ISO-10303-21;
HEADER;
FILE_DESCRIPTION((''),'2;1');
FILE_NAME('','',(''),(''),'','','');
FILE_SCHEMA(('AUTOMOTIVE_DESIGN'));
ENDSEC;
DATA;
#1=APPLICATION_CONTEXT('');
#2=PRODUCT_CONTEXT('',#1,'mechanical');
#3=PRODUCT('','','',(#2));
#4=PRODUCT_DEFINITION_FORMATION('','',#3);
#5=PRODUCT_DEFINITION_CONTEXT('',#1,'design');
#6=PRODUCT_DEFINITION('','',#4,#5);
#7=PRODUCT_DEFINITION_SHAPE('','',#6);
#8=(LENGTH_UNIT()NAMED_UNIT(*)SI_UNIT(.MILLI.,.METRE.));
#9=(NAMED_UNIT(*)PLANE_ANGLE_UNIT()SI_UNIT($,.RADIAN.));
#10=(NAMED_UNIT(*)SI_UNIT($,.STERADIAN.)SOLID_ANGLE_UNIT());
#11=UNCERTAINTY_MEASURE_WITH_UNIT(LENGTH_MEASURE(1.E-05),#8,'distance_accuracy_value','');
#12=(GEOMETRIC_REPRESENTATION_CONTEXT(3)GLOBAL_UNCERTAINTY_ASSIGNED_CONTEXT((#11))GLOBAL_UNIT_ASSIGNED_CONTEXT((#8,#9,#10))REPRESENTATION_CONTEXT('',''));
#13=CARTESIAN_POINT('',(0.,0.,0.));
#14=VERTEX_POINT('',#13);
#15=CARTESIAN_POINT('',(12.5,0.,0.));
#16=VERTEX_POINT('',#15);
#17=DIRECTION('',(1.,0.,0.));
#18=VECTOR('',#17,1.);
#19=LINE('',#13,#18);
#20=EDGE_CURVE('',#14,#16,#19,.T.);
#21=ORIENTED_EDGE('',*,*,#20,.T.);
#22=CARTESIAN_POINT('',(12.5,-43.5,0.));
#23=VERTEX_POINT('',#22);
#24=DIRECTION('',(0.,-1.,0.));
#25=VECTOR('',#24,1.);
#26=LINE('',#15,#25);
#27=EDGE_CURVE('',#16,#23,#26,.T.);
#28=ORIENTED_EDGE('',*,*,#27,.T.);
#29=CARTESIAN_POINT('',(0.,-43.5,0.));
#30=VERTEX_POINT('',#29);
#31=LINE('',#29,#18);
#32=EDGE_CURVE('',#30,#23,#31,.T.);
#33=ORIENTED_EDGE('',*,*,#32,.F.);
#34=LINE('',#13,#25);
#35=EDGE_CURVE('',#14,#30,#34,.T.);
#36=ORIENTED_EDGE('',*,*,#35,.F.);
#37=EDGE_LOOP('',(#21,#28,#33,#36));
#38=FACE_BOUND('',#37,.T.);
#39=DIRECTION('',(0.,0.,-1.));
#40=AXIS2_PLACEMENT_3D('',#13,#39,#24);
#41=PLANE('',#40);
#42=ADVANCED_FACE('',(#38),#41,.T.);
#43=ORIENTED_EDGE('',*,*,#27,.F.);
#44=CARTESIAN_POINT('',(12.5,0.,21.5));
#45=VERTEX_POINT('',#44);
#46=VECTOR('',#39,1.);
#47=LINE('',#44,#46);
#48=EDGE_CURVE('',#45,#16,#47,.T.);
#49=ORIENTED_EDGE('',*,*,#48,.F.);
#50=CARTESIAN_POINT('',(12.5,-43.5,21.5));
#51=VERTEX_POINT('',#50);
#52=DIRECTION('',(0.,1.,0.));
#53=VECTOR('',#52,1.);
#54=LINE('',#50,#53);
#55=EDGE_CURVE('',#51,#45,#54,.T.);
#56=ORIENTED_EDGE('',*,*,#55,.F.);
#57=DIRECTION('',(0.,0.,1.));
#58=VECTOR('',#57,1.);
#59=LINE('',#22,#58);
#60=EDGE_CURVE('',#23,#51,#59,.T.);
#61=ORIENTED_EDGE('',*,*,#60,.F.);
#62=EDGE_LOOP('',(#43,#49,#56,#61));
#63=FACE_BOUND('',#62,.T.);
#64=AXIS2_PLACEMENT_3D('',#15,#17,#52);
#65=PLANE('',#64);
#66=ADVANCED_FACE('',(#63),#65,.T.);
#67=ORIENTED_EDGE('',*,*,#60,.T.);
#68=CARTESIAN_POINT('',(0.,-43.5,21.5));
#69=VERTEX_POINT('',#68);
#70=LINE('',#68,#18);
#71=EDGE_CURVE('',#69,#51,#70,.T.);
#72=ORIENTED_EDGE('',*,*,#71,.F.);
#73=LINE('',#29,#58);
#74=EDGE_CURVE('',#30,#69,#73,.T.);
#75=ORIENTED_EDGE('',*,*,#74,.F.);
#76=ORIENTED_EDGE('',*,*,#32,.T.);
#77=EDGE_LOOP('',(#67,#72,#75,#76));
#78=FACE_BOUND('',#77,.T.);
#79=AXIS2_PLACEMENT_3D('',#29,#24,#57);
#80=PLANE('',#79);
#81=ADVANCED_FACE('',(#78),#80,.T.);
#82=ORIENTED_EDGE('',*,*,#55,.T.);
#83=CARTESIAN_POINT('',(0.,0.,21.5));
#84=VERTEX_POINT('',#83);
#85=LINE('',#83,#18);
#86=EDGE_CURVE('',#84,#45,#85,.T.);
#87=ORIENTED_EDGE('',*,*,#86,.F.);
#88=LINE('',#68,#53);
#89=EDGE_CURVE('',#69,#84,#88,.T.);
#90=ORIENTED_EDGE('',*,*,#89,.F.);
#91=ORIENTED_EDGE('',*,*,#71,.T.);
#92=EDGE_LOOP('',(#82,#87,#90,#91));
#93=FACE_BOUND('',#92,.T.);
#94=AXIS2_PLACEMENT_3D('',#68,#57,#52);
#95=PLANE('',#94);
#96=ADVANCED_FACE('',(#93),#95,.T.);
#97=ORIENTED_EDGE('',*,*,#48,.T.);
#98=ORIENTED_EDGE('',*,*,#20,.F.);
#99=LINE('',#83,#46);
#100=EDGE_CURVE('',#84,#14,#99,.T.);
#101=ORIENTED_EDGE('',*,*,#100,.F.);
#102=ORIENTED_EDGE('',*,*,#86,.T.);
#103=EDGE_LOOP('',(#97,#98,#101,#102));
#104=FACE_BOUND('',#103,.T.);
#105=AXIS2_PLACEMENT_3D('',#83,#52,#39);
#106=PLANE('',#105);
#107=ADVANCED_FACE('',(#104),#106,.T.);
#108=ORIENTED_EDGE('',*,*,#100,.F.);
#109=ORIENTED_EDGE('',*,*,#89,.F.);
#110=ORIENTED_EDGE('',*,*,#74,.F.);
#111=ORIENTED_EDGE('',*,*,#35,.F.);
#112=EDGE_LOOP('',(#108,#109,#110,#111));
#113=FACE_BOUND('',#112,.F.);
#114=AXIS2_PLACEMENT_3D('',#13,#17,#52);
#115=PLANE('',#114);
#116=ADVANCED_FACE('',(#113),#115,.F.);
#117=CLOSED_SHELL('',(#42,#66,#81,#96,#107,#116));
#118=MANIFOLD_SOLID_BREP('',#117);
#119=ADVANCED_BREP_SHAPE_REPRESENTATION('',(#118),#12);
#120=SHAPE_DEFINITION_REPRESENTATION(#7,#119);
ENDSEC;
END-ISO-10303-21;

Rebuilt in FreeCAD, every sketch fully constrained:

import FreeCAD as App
import Part
import Sketcher
Q = App.Units.Quantity


def add_polygon(sketch, points):
    """Adds a closed chain of lines whose ends are joined by coincident constraints."""
    first, n = sketch.GeometryCount, len(points)
    for a, b in zip(points, points[1:] + points[:1]):
        sketch.addGeometry(Part.LineSegment(App.Vector(*a, 0), App.Vector(*b, 0)), False)
    for i in range(n):
        sketch.addConstraint(Sketcher.Constraint("Coincident", first + i, 2, first + (i + 1) % n, 1))

doc = App.newDocument("Part")
params = doc.addObject("Spreadsheet::Sheet", "Params")
for row, (alias, value) in enumerate([
    ("sketch1_width", "43.5 mm"),
    ("sketch1_height", "21.5 mm"),
    ("pad1_length", "12.5 mm"),
], start=1):
    params.set(f"A{row}", alias)
    params.set(f"B{row}", "=" + value)
    params.setAlias(f"B{row}", alias)

body = doc.addObject("PartDesign::Body", "Body")

# Sketch on YZ plane
sketch1 = body.newObject("Sketcher::SketchObject", "Sketch")
sketch1.AttachmentSupport = (doc.getObject("YZ_Plane"), [""])
sketch1.MapMode = "FlatFace"
add_polygon(sketch1, [(-43.5, 0), (0, 0), (0, 21.5), (-43.5, 21.5)])  # lines 0-3
sketch1.addConstraint([
    Sketcher.Constraint("Horizontal", 0),
    Sketcher.Constraint("Vertical", 1),
    Sketcher.Constraint("Horizontal", 2),
    Sketcher.Constraint("Vertical", 3),
    Sketcher.Constraint("Coincident", 0, 2, -1, 1),
    Sketcher.Constraint("DistanceX", 0, 1, 0, 2, Q("43.5 mm")),
    Sketcher.Constraint("DistanceY", 1, 1, 1, 2, Q("21.5 mm")),
])
sketch1.setExpression("Constraints[9]", "Params.sketch1_width")
sketch1.setExpression("Constraints[10]", "Params.sketch1_height")
pad1 = body.newObject("PartDesign::Pad", "Pad")
pad1.Profile = sketch1
pad1.setExpression("Length", "Params.pad1_length")

doc.recompute()
